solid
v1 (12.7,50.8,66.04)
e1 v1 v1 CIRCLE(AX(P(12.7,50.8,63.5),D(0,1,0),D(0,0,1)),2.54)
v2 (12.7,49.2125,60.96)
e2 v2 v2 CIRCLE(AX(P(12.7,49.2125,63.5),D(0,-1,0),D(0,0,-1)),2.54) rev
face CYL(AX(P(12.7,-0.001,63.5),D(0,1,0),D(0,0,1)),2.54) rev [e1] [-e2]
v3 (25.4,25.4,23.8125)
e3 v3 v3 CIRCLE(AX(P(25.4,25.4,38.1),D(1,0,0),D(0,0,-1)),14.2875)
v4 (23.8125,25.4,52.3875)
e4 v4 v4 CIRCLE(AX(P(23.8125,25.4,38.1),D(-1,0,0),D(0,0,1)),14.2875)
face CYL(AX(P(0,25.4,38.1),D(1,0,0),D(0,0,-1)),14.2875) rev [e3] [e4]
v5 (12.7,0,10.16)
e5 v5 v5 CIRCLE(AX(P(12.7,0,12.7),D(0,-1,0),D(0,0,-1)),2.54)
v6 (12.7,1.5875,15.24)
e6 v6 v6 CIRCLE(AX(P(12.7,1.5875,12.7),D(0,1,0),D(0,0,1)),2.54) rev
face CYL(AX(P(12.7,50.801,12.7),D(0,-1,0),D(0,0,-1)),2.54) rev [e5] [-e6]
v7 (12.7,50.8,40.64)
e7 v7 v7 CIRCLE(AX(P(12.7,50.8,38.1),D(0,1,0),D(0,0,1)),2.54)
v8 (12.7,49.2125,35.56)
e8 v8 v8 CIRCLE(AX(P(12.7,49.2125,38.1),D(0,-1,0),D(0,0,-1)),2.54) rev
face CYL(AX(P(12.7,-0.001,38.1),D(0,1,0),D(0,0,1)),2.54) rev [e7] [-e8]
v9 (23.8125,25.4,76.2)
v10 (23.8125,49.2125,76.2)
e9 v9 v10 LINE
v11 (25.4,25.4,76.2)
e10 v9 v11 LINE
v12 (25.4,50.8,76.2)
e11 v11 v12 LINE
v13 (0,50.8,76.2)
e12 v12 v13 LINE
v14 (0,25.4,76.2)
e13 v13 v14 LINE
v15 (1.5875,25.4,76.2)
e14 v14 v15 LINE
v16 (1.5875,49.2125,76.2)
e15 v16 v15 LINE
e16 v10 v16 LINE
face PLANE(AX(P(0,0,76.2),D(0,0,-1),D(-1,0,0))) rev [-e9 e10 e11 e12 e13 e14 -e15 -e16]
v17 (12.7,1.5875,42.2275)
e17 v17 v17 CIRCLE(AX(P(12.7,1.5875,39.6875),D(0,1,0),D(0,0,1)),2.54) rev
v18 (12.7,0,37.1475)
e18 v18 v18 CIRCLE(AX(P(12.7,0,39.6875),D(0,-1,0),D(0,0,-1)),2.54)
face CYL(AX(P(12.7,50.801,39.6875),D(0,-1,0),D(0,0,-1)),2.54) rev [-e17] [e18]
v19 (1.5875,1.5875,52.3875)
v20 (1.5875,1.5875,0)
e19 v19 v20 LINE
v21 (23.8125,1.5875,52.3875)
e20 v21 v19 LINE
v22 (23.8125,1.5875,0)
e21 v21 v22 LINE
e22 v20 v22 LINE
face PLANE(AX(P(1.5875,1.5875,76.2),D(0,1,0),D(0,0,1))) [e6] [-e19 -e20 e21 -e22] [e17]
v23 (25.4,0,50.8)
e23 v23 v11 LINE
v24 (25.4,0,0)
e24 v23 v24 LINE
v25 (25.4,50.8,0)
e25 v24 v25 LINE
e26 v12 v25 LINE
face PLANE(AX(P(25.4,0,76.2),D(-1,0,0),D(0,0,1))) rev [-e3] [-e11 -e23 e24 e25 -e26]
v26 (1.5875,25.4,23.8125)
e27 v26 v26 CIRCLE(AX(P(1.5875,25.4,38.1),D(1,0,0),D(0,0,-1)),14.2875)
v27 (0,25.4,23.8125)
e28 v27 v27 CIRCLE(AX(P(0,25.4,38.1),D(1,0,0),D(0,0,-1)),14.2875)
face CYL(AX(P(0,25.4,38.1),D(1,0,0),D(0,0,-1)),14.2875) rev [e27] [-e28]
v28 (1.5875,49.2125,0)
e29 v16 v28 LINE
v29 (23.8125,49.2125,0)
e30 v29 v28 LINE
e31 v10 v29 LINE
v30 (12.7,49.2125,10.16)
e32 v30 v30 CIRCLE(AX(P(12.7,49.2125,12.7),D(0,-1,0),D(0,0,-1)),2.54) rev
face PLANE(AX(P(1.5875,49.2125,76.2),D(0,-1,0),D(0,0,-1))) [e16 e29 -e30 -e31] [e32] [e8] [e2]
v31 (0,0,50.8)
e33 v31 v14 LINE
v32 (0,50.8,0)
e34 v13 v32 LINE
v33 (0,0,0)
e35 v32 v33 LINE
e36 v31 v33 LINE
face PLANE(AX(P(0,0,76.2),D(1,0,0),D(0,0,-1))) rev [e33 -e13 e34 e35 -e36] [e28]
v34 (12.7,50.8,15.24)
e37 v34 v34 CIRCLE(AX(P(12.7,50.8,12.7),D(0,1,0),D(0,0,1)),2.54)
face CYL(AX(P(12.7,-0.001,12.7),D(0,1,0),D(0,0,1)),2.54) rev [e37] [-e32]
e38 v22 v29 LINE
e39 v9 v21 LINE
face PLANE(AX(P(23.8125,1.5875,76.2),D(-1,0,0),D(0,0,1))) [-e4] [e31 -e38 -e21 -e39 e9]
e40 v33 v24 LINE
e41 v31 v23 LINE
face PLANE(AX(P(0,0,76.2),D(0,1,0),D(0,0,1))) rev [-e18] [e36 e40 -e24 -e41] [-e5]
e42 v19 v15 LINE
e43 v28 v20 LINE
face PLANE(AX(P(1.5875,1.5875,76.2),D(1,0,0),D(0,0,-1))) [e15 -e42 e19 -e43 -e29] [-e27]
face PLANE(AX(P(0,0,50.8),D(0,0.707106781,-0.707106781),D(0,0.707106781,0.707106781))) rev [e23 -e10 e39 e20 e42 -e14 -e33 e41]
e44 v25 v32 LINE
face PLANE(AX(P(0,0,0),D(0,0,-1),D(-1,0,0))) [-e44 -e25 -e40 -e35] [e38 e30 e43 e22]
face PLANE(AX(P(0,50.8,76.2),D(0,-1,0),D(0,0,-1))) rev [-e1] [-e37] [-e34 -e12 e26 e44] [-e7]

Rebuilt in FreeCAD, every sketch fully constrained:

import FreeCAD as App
import Part
import Sketcher
Q = App.Units.Quantity


def add_polygon(sketch, points):
    """Adds a closed chain of lines whose ends are joined by coincident constraints."""
    first, n = sketch.GeometryCount, len(points)
    for a, b in zip(points, points[1:] + points[:1]):
        sketch.addGeometry(Part.LineSegment(App.Vector(*a, 0), App.Vector(*b, 0)), False)
    for i in range(n):
        sketch.addConstraint(Sketcher.Constraint("Coincident", first + i, 2, first + (i + 1) % n, 1))

doc = App.newDocument("Part")
body = doc.addObject("PartDesign::Body", "Body")

# Sketch on XY plane
sketch1 = body.newObject("Sketcher::SketchObject", "Sketch")
sketch1.AttachmentSupport = (doc.getObject("XY_Plane"), [""])
sketch1.MapMode = "FlatFace"
add_polygon(sketch1, [(0, 51), (0, 0), (25, 0), (25, 51)])  # lines 0-3
add_polygon(sketch1, [(24, 2), (2, 2), (2, 49), (24, 49)])  # lines 4-7
sketch1.addConstraint(Sketcher.Constraint("Vertical", 0))
sketch1.addConstraint(Sketcher.Constraint("Horizontal", 1))
sketch1.addConstraint(Sketcher.Constraint("Vertical", 2))
sketch1.addConstraint(Sketcher.Constraint("Horizontal", 3))
sketch1.addConstraint(Sketcher.Constraint("Horizontal", 4))
sketch1.addConstraint(Sketcher.Constraint("Vertical", 5))
sketch1.addConstraint(Sketcher.Constraint("Horizontal", 6))
sketch1.addConstraint(Sketcher.Constraint("Vertical", 7))
sketch1.addConstraint(Sketcher.Constraint("Coincident", 0, 2, -1, 1))
sketch1.addConstraint(Sketcher.Constraint("DistanceX", 1, 1, 1, 2, Q("1 in")))
sketch1.addConstraint(Sketcher.Constraint("DistanceY", 0, 2, 0, 1, Q("2 in")))
sketch1.addConstraint(Sketcher.Constraint("DistanceX", 4, 2, 4, 1, Q("0.875 in")))
sketch1.addConstraint(Sketcher.Constraint("DistanceY", 5, 1, 5, 2, Q("1.875 in")))
sketch1.addConstraint(Sketcher.Constraint("DistanceX", -1, 1, 4, 2, Q("0.0625 in")))
sketch1.addConstraint(Sketcher.Constraint("DistanceY", -1, 1, 4, 2, Q("0.0625 in")))
pad1 = body.newObject("PartDesign::Pad", "Pad")
pad1.Profile = sketch1
pad1.Length = Q("3 in")

# Sketch on YZ plane
sketch2 = body.newObject("Sketcher::SketchObject", "Sketch001")
sketch2.AttachmentSupport = (doc.getObject("YZ_Plane"), [""])
sketch2.MapMode = "FlatFace"
sketch2.AttachmentOffset = App.Placement(App.Vector(0, 0, 1 * 25.4), App.Rotation())
sketch2.addGeometry(Part.Circle(App.Vector(25, 38, 0), App.Vector(0, 0, 1), 14), False)
sketch2.addConstraint(Sketcher.Constraint("Diameter", 0, Q("1.125 in")))
sketch2.addConstraint(Sketcher.Constraint("DistanceX", -1, 1, 0, 3, Q("1 in")))
sketch2.addConstraint(Sketcher.Constraint("DistanceY", -1, 1, 0, 3, Q("1.5 in")))
pocket1 = body.newObject("PartDesign::Pocket", "Pocket")
pocket1.Profile = sketch2
pocket1.Type = "ThroughAll"

# Sketch on YZ plane
sketch3 = body.newObject("Sketcher::SketchObject", "Sketch002")
sketch3.AttachmentSupport = (doc.getObject("YZ_Plane"), [""])
sketch3.MapMode = "FlatFace"
sketch3.AttachmentOffset = App.Placement(App.Vector(0, 0, 1 * 25.4), App.Rotation())
add_polygon(sketch3, [(0, 51), (25, 76), (0, 76)])  # lines 0-2
sketch3.addConstraint(Sketcher.Constraint("Horizontal", 1))
sketch3.addConstraint(Sketcher.Constraint("Vertical", 2))
sketch3.addConstraint(Sketcher.Constraint("PointOnObject", 1, 2, -2))
sketch3.addConstraint(Sketcher.Constraint("Equal", 1, 2))
sketch3.addConstraint(Sketcher.Constraint("DistanceX", 1, 2, 1, 1, Q("1 in")))
sketch3.addConstraint(Sketcher.Constraint("DistanceY", -1, 1, 0, 2, Q("3 in")))
pocket2 = body.newObject("PartDesign::Pocket", "Pocket001")
pocket2.Profile = sketch3
pocket2.Type = "ThroughAll"

# Sketch on XZ plane
sketch4 = body.newObject("Sketcher::SketchObject", "Sketch003")
sketch4.AttachmentSupport = (doc.getObject("XZ_Plane"), [""])
sketch4.MapMode = "FlatFace"
sketch4.AttachmentOffset = App.Placement(App.Vector(0, 0, -2 * 25.4), App.Rotation())
sketch4.addGeometry(Part.Circle(App.Vector(12.7, 12.7, 0), App.Vector(0, 0, 1), 2.5), False)
sketch4.addConstraint(Sketcher.Constraint("Diameter", 0, Q("0.2 in")))
sketch4.addConstraint(Sketcher.Constraint("DistanceX", -1, 1, 0, 3, Q("0.5 in")))
sketch4.addConstraint(Sketcher.Constraint("DistanceY", -1, 1, 0, 3, Q("0.5 in")))
pocket3 = body.newObject("PartDesign::Pocket", "Pocket002")
pocket3.Profile = sketch4
pocket3.Type = "UpToFirst"
pocket3.Reversed = True

# Sketch on XZ plane
sketch5 = body.newObject("Sketcher::SketchObject", "Sketch004")
sketch5.AttachmentSupport = (doc.getObject("XZ_Plane"), [""])
sketch5.MapMode = "FlatFace"
sketch5.AttachmentOffset = App.Placement(App.Vector(0, 0, -2 * 25.4), App.Rotation())
sketch5.addGeometry(Part.Circle(App.Vector(12.7, 38.1, 0), App.Vector(0, 0, 1), 2.5), False)
sketch5.addConstraint(Sketcher.Constraint("Diameter", 0, Q("0.2 in")))
sketch5.addConstraint(Sketcher.Constraint("DistanceX", -1, 1, 0, 3, Q("0.5 in")))
sketch5.addConstraint(Sketcher.Constraint("DistanceY", -1, 1, 0, 3, Q("1.5 in")))
pocket4 = body.newObject("PartDesign::Pocket", "Pocket003")
pocket4.Profile = sketch5
pocket4.Type = "UpToFirst"
pocket4.Reversed = True

# Sketch on XZ plane
sketch6 = body.newObject("Sketcher::SketchObject", "Sketch005")
sketch6.AttachmentSupport = (doc.getObject("XZ_Plane"), [""])
sketch6.MapMode = "FlatFace"
sketch6.AttachmentOffset = App.Placement(App.Vector(0, 0, -2 * 25.4), App.Rotation())
sketch6.addGeometry(Part.Circle(App.Vector(12.7, 63.5, 0), App.Vector(0, 0, 1), 2.5), False)
sketch6.addConstraint(Sketcher.Constraint("Diameter", 0, Q("0.2 in")))
sketch6.addConstraint(Sketcher.Constraint("DistanceX", -1, 1, 0, 3, Q("0.5 in")))
sketch6.addConstraint(Sketcher.Constraint("DistanceY", -1, 1, 0, 3, Q("2.5 in")))
pocket5 = body.newObject("PartDesign::Pocket", "Pocket004")
pocket5.Profile = sketch6
pocket5.Type = "UpToFirst"
pocket5.Reversed = True

# Sketch on XZ plane
sketch7 = body.newObject("Sketcher::SketchObject", "Sketch006")
sketch7.AttachmentSupport = (doc.getObject("XZ_Plane"), [""])
sketch7.MapMode = "FlatFace"
sketch7.addGeometry(Part.Circle(App.Vector(12.7, 12.7, 0), App.Vector(0, 0, 1), 2.5), False)
sketch7.addConstraint(Sketcher.Constraint("Diameter", 0, Q("0.2 in")))
sketch7.addConstraint(Sketcher.Constraint("DistanceX", -1, 1, 0, 3, Q("0.5 in")))
sketch7.addConstraint(Sketcher.Constraint("DistanceY", -1, 1, 0, 3, Q("0.5 in")))
pocket6 = body.newObject("PartDesign::Pocket", "Pocket005")
pocket6.Profile = sketch7
pocket6.Type = "UpToFirst"

# Sketch on XZ plane
sketch8 = body.newObject("Sketcher::SketchObject", "Sketch007")
sketch8.AttachmentSupport = (doc.getObject("XZ_Plane"), [""])
sketch8.MapMode = "FlatFace"
sketch8.addGeometry(Part.Circle(App.Vector(12.7, 39.7, 0), App.Vector(0, 0, 1), 2.5), False)
sketch8.addConstraint(Sketcher.Constraint("Diameter", 0, Q("0.2 in")))
sketch8.addConstraint(Sketcher.Constraint("DistanceX", -1, 1, 0, 3, Q("0.5 in")))
sketch8.addConstraint(Sketcher.Constraint("DistanceY", -1, 1, 0, 3, Q("1.5625 in")))
pocket7 = body.newObject("PartDesign::Pocket", "Pocket006")
pocket7.Profile = sketch8
pocket7.Type = "UpToFirst"

doc.recompute()
